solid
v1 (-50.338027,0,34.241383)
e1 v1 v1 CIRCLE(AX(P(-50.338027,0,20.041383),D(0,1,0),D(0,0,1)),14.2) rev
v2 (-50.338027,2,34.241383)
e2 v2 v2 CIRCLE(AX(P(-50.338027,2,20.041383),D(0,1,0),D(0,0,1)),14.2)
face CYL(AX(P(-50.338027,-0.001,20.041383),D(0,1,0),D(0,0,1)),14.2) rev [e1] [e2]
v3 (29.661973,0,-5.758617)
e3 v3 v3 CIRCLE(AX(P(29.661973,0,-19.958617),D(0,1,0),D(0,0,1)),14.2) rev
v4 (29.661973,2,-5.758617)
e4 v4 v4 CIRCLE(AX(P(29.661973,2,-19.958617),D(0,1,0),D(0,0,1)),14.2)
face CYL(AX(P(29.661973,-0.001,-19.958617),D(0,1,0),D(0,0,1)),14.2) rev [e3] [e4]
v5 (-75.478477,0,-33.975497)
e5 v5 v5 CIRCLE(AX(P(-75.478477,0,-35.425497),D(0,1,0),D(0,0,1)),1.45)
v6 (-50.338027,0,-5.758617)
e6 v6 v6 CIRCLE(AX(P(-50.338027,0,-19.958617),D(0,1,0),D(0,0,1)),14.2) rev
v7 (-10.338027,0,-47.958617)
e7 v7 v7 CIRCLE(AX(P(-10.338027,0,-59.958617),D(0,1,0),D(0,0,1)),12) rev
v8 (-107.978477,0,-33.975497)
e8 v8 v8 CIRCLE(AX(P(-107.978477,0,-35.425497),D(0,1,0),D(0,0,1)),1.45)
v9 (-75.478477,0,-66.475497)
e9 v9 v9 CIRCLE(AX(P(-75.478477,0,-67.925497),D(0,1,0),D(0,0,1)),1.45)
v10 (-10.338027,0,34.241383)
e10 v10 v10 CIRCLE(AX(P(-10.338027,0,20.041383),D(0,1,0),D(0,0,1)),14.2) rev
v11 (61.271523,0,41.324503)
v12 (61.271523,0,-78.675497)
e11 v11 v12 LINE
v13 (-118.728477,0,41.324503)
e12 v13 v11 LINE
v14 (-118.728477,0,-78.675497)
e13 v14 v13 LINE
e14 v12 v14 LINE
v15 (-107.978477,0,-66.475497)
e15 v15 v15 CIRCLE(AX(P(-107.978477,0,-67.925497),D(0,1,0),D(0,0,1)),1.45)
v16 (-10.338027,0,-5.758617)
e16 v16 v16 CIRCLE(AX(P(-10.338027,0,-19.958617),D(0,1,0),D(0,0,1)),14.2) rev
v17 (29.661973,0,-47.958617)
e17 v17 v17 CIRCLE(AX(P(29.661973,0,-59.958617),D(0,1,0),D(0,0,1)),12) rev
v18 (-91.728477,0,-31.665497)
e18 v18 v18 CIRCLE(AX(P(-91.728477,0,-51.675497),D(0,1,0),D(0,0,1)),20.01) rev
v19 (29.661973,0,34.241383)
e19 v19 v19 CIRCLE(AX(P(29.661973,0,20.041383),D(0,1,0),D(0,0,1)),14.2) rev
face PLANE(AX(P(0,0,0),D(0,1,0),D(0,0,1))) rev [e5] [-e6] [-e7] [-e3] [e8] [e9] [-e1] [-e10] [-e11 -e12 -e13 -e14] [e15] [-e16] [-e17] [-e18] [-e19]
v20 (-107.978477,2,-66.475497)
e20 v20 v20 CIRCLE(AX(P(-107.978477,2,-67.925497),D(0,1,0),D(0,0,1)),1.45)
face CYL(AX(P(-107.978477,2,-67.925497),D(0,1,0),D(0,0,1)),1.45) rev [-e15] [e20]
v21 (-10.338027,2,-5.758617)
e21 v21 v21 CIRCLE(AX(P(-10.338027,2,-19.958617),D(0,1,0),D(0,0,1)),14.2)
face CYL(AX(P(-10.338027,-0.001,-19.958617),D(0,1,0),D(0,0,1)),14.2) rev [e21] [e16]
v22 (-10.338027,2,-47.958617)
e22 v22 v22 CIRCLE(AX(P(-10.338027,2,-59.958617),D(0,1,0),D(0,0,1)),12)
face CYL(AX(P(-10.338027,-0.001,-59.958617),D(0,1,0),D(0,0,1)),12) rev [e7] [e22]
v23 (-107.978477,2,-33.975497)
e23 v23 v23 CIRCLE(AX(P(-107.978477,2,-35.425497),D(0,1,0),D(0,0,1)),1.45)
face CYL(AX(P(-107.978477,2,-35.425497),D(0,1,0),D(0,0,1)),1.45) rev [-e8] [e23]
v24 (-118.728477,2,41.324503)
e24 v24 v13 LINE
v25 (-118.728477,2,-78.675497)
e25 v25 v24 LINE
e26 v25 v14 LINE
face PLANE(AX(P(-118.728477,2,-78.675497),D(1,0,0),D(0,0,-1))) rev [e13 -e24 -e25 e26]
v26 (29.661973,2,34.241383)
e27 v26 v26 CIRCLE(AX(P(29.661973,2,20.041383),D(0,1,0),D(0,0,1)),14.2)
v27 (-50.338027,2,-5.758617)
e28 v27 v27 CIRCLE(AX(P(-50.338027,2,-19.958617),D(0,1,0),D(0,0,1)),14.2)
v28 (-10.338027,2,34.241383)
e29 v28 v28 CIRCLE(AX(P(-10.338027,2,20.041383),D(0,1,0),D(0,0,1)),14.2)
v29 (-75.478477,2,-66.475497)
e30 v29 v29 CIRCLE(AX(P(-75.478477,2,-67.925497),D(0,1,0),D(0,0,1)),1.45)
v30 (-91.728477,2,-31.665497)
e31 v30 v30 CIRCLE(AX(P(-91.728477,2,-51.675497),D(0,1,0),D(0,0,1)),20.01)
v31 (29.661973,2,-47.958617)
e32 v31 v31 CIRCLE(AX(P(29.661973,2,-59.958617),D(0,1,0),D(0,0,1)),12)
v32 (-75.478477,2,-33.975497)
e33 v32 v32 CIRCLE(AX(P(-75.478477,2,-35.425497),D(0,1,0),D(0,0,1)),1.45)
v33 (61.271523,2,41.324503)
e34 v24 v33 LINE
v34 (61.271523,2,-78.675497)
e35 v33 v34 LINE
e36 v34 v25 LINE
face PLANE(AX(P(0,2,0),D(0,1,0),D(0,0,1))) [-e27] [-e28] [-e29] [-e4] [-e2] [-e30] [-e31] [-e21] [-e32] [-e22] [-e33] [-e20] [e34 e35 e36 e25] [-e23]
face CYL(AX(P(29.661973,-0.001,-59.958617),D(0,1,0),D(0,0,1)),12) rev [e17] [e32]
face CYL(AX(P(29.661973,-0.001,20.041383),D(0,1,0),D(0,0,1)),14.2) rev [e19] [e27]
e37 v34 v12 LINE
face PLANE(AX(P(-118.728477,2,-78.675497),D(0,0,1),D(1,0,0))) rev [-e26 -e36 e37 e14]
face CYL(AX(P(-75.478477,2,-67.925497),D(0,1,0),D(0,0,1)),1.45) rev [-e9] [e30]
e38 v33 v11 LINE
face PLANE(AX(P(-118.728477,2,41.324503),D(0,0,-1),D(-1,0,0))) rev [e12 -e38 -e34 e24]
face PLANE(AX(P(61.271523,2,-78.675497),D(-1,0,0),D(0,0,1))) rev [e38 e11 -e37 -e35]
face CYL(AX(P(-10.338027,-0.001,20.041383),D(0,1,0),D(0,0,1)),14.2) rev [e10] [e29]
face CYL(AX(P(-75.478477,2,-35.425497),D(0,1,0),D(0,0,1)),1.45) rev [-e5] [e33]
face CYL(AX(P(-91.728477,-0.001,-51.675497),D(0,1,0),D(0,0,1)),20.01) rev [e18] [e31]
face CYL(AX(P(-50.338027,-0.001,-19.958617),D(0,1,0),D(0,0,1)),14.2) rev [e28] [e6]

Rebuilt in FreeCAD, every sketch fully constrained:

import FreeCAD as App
import Part
import Sketcher
from FreeCAD import Vector
Q = App.Units.Quantity


def add_polygon(sketch, points):
    """Adds a closed chain of lines whose ends are joined by coincident constraints."""
    first, n = sketch.GeometryCount, len(points)
    for a, b in zip(points, points[1:] + points[:1]):
        sketch.addGeometry(Part.LineSegment(App.Vector(*a, 0), App.Vector(*b, 0)), False)
    for i in range(n):
        sketch.addConstraint(Sketcher.Constraint("Coincident", first + i, 2, first + (i + 1) % n, 1))

doc = App.newDocument("Part")
params = doc.addObject("Spreadsheet::Sheet", "Params")
for row, (alias, value) in enumerate([
    ("sketch1_width", "180 mm"),
    ("sketch1_height", "120 mm"),
    ("pad1_length", "2 mm"),
    ("sketch2_diameter", "28.4 mm"),
    ("sketch3_diameter", "24 mm"),
    ("sketch4_diameter", "24 mm"),
    ("sketch5_diameter", "28.4 mm"),
    ("sketch6_diameter", "28.4 mm"),
    ("sketch7_diameter", "28.4 mm"),
    ("sketch8_diameter", "28.4 mm"),
    ("sketch9_diameter", "28.4 mm"),
    ("sketch10_diameter", "40.02 mm"),
    ("sketch11_diameter", "2.9 mm"),
    ("hole_diameter", "2.9 mm"),
], start=1):
    params.set(f"A{row}", alias)
    params.set(f"B{row}", "=" + value)
    params.setAlias(f"B{row}", alias)

body = doc.addObject("PartDesign::Body", "Body")

# Sketch on XZ plane
sketch1 = body.newObject("Sketcher::SketchObject", "Sketch")
sketch1.AttachmentSupport = (doc.getObject("XZ_Plane"), [""])
sketch1.MapMode = "FlatFace"
add_polygon(sketch1, [(-119, -79), (-119, 41), (61, 41), (61, -79)])  # lines 0-3
sketch1.addConstraint([
    Sketcher.Constraint("Vertical", 0),
    Sketcher.Constraint("Horizontal", 1),
    Sketcher.Constraint("Vertical", 2),
    Sketcher.Constraint("Horizontal", 3),
    Sketcher.Constraint("DistanceX", 1, 1, 1, 2, Q("180 mm")),
    Sketcher.Constraint("DistanceY", 0, 1, 0, 2, Q("120 mm")),
    Sketcher.Constraint("DistanceX", 0, 2, -1, 1, Q("118.728477 mm")),
    Sketcher.Constraint("DistanceY", -1, 1, 0, 2, Q("41.324503 mm")),
])
sketch1.setExpression("Constraints[8]", "Params.sketch1_width")
sketch1.setExpression("Constraints[9]", "Params.sketch1_height")
pad1 = body.newObject("PartDesign::Pad", "Pad")
pad1.Profile = sketch1
pad1.setExpression("Length", "Params.pad1_length")
pad1.Reversed = True

# Sketch on XZ plane
sketch2 = body.newObject("Sketcher::SketchObject", "Sketch001")
sketch2.AttachmentSupport = (doc.getObject("XZ_Plane"), [""])
sketch2.MapMode = "FlatFace"
sketch2.AttachmentOffset = App.Placement(Vector(0, 0, -2), App.Rotation())
sketch2.addGeometry(Part.Circle(Vector(-50, 20, 0), Vector(0, 0, 1), 14), False)
sketch2.addConstraint([
    Sketcher.Constraint("Diameter", 0, Q("28.4 mm")),
    Sketcher.Constraint("DistanceX", 0, 3, -1, 1, Q("50.338027 mm")),
    Sketcher.Constraint("DistanceY", -1, 1, 0, 3, Q("20.041383 mm")),
])
sketch2.setExpression("Constraints[0]", "Params.sketch2_diameter")
pocket1 = body.newObject("PartDesign::Pocket", "Pocket")
pocket1.Profile = sketch2
pocket1.Type = "UpToFirst"
pocket1.Reversed = True

# Sketch on XZ plane
sketch3 = body.newObject("Sketcher::SketchObject", "Sketch002")
sketch3.AttachmentSupport = (doc.getObject("XZ_Plane"), [""])
sketch3.MapMode = "FlatFace"
sketch3.AttachmentOffset = App.Placement(Vector(0, 0, -2), App.Rotation())
sketch3.addGeometry(Part.Circle(Vector(30, -60, 0), Vector(0, 0, 1), 12), False)
sketch3.addConstraint([
    Sketcher.Constraint("Diameter", 0, Q("24 mm")),
    Sketcher.Constraint("DistanceX", -1, 1, 0, 3, Q("29.661973 mm")),
    Sketcher.Constraint("DistanceY", 0, 3, -1, 1, Q("59.958617 mm")),
])
sketch3.setExpression("Constraints[0]", "Params.sketch3_diameter")
pocket2 = body.newObject("PartDesign::Pocket", "Pocket001")
pocket2.Profile = sketch3
pocket2.Type = "UpToFirst"
pocket2.Reversed = True

# Sketch on XZ plane
sketch4 = body.newObject("Sketcher::SketchObject", "Sketch003")
sketch4.AttachmentSupport = (doc.getObject("XZ_Plane"), [""])
sketch4.MapMode = "FlatFace"
sketch4.AttachmentOffset = App.Placement(Vector(0, 0, -2), App.Rotation())
sketch4.addGeometry(Part.Circle(Vector(-10, -60, 0), Vector(0, 0, 1), 12), False)
sketch4.addConstraint([
    Sketcher.Constraint("Diameter", 0, Q("24 mm")),
    Sketcher.Constraint("DistanceX", 0, 3, -1, 1, Q("10.338027 mm")),
    Sketcher.Constraint("DistanceY", 0, 3, -1, 1, Q("59.958617 mm")),
])
sketch4.setExpression("Constraints[0]", "Params.sketch4_diameter")
pocket3 = body.newObject("PartDesign::Pocket", "Pocket002")
pocket3.Profile = sketch4
pocket3.Type = "UpToFirst"
pocket3.Reversed = True

# Sketch on XZ plane
sketch5 = body.newObject("Sketcher::SketchObject", "Sketch004")
sketch5.AttachmentSupport = (doc.getObject("XZ_Plane"), [""])
sketch5.MapMode = "FlatFace"
sketch5.AttachmentOffset = App.Placement(Vector(0, 0, -2), App.Rotation())
sketch5.addGeometry(Part.Circle(Vector(-10, 20, 0), Vector(0, 0, 1), 14), False)
sketch5.addConstraint([
    Sketcher.Constraint("Diameter", 0, Q("28.4 mm")),
    Sketcher.Constraint("DistanceX", 0, 3, -1, 1, Q("10.338027 mm")),
    Sketcher.Constraint("DistanceY", -1, 1, 0, 3, Q("20.041383 mm")),
])
sketch5.setExpression("Constraints[0]", "Params.sketch5_diameter")
pocket4 = body.newObject("PartDesign::Pocket", "Pocket003")
pocket4.Profile = sketch5
pocket4.Type = "UpToFirst"
pocket4.Reversed = True

# Sketch on XZ plane
sketch6 = body.newObject("Sketcher::SketchObject", "Sketch005")
sketch6.AttachmentSupport = (doc.getObject("XZ_Plane"), [""])
sketch6.MapMode = "FlatFace"
sketch6.AttachmentOffset = App.Placement(Vector(0, 0, -2), App.Rotation())
sketch6.addGeometry(Part.Circle(Vector(30, 20, 0), Vector(0, 0, 1), 14), False)
sketch6.addConstraint([
    Sketcher.Constraint("Diameter", 0, Q("28.4 mm")),
    Sketcher.Constraint("DistanceX", -1, 1, 0, 3, Q("29.661973 mm")),
    Sketcher.Constraint("DistanceY", -1, 1, 0, 3, Q("20.041383 mm")),
])
sketch6.setExpression("Constraints[0]", "Params.sketch6_diameter")
pocket5 = body.newObject("PartDesign::Pocket", "Pocket004")
pocket5.Profile = sketch6
pocket5.Type = "UpToFirst"
pocket5.Reversed = True

# Sketch on XZ plane
sketch7 = body.newObject("Sketcher::SketchObject", "Sketch006")
sketch7.AttachmentSupport = (doc.getObject("XZ_Plane"), [""])
sketch7.MapMode = "FlatFace"
sketch7.AttachmentOffset = App.Placement(Vector(0, 0, -2), App.Rotation())
sketch7.addGeometry(Part.Circle(Vector(-50, -20, 0), Vector(0, 0, 1), 14), False)
sketch7.addConstraint([
    Sketcher.Constraint("Diameter", 0, Q("28.4 mm")),
    Sketcher.Constraint("DistanceX", 0, 3, -1, 1, Q("50.338027 mm")),
    Sketcher.Constraint("DistanceY", 0, 3, -1, 1, Q("19.958617 mm")),
])
sketch7.setExpression("Constraints[0]", "Params.sketch7_diameter")
pocket6 = body.newObject("PartDesign::Pocket", "Pocket005")
pocket6.Profile = sketch7
pocket6.Type = "UpToFirst"
pocket6.Reversed = True

# Sketch on XZ plane
sketch8 = body.newObject("Sketcher::SketchObject", "Sketch007")
sketch8.AttachmentSupport = (doc.getObject("XZ_Plane"), [""])
sketch8.MapMode = "FlatFace"
sketch8.AttachmentOffset = App.Placement(Vector(0, 0, -2), App.Rotation())
sketch8.addGeometry(Part.Circle(Vector(-10, -20, 0), Vector(0, 0, 1), 14), False)
sketch8.addConstraint([
    Sketcher.Constraint("Diameter", 0, Q("28.4 mm")),
    Sketcher.Constraint("DistanceX", 0, 3, -1, 1, Q("10.338027 mm")),
    Sketcher.Constraint("DistanceY", 0, 3, -1, 1, Q("19.958617 mm")),
])
sketch8.setExpression("Constraints[0]", "Params.sketch8_diameter")
pocket7 = body.newObject("PartDesign::Pocket", "Pocket006")
pocket7.Profile = sketch8
pocket7.Type = "UpToFirst"
pocket7.Reversed = True

# Sketch on XZ plane
sketch9 = body.newObject("Sketcher::SketchObject", "Sketch008")
sketch9.AttachmentSupport = (doc.getObject("XZ_Plane"), [""])
sketch9.MapMode = "FlatFace"
sketch9.AttachmentOffset = App.Placement(Vector(0, 0, -2), App.Rotation())
sketch9.addGeometry(Part.Circle(Vector(30, -20, 0), Vector(0, 0, 1), 14), False)
sketch9.addConstraint([
    Sketcher.Constraint("Diameter", 0, Q("28.4 mm")),
    Sketcher.Constraint("DistanceX", -1, 1, 0, 3, Q("29.661973 mm")),
    Sketcher.Constraint("DistanceY", 0, 3, -1, 1, Q("19.958617 mm")),
])
sketch9.setExpression("Constraints[0]", "Params.sketch9_diameter")
pocket8 = body.newObject("PartDesign::Pocket", "Pocket007")
pocket8.Profile = sketch9
pocket8.Type = "UpToFirst"
pocket8.Reversed = True

# Sketch on XZ plane
sketch10 = body.newObject("Sketcher::SketchObject", "Sketch009")
sketch10.AttachmentSupport = (doc.getObject("XZ_Plane"), [""])
sketch10.MapMode = "FlatFace"
sketch10.AttachmentOffset = App.Placement(Vector(0, 0, -2), App.Rotation())
sketch10.addGeometry(Part.Circle(Vector(-92, -52, 0), Vector(0, 0, 1), 20), False)
sketch10.addConstraint([
    Sketcher.Constraint("Diameter", 0, Q("40.02 mm")),
    Sketcher.Constraint("DistanceX", 0, 3, -1, 1, Q("91.728477 mm")),
    Sketcher.Constraint("DistanceY", 0, 3, -1, 1, Q("51.675497 mm")),
])
sketch10.setExpression("Constraints[0]", "Params.sketch10_diameter")
pocket9 = body.newObject("PartDesign::Pocket", "Pocket008")
pocket9.Profile = sketch10
pocket9.Type = "UpToFirst"
pocket9.Reversed = True

# Sketch on XZ plane
sketch11 = body.newObject("Sketcher::SketchObject", "Sketch010")
sketch11.AttachmentSupport = (doc.getObject("XZ_Plane"), [""])
sketch11.MapMode = "FlatFace"
sketch11.AttachmentOffset = App.Placement(Vector(0, 0, -2), App.Rotation())
sketch11.addGeometry([
    Part.Circle(Vector(-91.7, -51.7, 0), Vector(0, 0, 1), 1.4),  # 0
    Part.Circle(Vector(-75.5, -67.9, 0), Vector(0, 0, 1), 1.4),  # 1
    Part.Circle(Vector(-108, -67.9, 0), Vector(0, 0, 1), 1.4),  # 2
    Part.Circle(Vector(-75.5, -35.4, 0), Vector(0, 0, 1), 1.4),  # 3
    Part.Circle(Vector(-108, -35.4, 0), Vector(0, 0, 1), 1.4),  # 4
], False)
sketch11.addConstraint([
    Sketcher.Constraint("Equal", 0, 1),
    Sketcher.Constraint("Equal", 1, 2),
    Sketcher.Constraint("Equal", 2, 3),
    Sketcher.Constraint("Equal", 3, 4),
    Sketcher.Constraint("Horizontal", 1, 3, 2, 3),
    Sketcher.Constraint("Horizontal", 3, 3, 4, 3),
    Sketcher.Constraint("Vertical", 1, 3, 3, 3),
    Sketcher.Constraint("Vertical", 2, 3, 4, 3),
    Sketcher.Constraint("Diameter", 0, Q("2.9 mm")),
    Sketcher.Constraint("DistanceX", 2, 3, 1, 3, Q("32.5 mm")),
    Sketcher.Constraint("DistanceY", 1, 3, 3, 3, Q("32.5 mm")),
    Sketcher.Constraint("DistanceX", 0, 3, 1, 3, Q("16.25 mm")),
    Sketcher.Constraint("DistanceY", 1, 3, 0, 3, Q("16.25 mm")),
    Sketcher.Constraint("DistanceX", 0, 3, -1, 1, Q("91.728477 mm")),
    Sketcher.Constraint("DistanceY", 0, 3, -1, 1, Q("51.675497 mm")),
])
sketch11.setExpression("Constraints[8]", "Params.sketch11_diameter")
doc.recompute()
hole = body.newObject("PartDesign::Hole", "Hole")
hole.Profile = sketch11
hole.ThreadType = "None"
hole.setExpression("Diameter", "Params.hole_diameter")
hole.DepthType = "ThroughAll"
hole.Reversed = True

doc.recompute()
